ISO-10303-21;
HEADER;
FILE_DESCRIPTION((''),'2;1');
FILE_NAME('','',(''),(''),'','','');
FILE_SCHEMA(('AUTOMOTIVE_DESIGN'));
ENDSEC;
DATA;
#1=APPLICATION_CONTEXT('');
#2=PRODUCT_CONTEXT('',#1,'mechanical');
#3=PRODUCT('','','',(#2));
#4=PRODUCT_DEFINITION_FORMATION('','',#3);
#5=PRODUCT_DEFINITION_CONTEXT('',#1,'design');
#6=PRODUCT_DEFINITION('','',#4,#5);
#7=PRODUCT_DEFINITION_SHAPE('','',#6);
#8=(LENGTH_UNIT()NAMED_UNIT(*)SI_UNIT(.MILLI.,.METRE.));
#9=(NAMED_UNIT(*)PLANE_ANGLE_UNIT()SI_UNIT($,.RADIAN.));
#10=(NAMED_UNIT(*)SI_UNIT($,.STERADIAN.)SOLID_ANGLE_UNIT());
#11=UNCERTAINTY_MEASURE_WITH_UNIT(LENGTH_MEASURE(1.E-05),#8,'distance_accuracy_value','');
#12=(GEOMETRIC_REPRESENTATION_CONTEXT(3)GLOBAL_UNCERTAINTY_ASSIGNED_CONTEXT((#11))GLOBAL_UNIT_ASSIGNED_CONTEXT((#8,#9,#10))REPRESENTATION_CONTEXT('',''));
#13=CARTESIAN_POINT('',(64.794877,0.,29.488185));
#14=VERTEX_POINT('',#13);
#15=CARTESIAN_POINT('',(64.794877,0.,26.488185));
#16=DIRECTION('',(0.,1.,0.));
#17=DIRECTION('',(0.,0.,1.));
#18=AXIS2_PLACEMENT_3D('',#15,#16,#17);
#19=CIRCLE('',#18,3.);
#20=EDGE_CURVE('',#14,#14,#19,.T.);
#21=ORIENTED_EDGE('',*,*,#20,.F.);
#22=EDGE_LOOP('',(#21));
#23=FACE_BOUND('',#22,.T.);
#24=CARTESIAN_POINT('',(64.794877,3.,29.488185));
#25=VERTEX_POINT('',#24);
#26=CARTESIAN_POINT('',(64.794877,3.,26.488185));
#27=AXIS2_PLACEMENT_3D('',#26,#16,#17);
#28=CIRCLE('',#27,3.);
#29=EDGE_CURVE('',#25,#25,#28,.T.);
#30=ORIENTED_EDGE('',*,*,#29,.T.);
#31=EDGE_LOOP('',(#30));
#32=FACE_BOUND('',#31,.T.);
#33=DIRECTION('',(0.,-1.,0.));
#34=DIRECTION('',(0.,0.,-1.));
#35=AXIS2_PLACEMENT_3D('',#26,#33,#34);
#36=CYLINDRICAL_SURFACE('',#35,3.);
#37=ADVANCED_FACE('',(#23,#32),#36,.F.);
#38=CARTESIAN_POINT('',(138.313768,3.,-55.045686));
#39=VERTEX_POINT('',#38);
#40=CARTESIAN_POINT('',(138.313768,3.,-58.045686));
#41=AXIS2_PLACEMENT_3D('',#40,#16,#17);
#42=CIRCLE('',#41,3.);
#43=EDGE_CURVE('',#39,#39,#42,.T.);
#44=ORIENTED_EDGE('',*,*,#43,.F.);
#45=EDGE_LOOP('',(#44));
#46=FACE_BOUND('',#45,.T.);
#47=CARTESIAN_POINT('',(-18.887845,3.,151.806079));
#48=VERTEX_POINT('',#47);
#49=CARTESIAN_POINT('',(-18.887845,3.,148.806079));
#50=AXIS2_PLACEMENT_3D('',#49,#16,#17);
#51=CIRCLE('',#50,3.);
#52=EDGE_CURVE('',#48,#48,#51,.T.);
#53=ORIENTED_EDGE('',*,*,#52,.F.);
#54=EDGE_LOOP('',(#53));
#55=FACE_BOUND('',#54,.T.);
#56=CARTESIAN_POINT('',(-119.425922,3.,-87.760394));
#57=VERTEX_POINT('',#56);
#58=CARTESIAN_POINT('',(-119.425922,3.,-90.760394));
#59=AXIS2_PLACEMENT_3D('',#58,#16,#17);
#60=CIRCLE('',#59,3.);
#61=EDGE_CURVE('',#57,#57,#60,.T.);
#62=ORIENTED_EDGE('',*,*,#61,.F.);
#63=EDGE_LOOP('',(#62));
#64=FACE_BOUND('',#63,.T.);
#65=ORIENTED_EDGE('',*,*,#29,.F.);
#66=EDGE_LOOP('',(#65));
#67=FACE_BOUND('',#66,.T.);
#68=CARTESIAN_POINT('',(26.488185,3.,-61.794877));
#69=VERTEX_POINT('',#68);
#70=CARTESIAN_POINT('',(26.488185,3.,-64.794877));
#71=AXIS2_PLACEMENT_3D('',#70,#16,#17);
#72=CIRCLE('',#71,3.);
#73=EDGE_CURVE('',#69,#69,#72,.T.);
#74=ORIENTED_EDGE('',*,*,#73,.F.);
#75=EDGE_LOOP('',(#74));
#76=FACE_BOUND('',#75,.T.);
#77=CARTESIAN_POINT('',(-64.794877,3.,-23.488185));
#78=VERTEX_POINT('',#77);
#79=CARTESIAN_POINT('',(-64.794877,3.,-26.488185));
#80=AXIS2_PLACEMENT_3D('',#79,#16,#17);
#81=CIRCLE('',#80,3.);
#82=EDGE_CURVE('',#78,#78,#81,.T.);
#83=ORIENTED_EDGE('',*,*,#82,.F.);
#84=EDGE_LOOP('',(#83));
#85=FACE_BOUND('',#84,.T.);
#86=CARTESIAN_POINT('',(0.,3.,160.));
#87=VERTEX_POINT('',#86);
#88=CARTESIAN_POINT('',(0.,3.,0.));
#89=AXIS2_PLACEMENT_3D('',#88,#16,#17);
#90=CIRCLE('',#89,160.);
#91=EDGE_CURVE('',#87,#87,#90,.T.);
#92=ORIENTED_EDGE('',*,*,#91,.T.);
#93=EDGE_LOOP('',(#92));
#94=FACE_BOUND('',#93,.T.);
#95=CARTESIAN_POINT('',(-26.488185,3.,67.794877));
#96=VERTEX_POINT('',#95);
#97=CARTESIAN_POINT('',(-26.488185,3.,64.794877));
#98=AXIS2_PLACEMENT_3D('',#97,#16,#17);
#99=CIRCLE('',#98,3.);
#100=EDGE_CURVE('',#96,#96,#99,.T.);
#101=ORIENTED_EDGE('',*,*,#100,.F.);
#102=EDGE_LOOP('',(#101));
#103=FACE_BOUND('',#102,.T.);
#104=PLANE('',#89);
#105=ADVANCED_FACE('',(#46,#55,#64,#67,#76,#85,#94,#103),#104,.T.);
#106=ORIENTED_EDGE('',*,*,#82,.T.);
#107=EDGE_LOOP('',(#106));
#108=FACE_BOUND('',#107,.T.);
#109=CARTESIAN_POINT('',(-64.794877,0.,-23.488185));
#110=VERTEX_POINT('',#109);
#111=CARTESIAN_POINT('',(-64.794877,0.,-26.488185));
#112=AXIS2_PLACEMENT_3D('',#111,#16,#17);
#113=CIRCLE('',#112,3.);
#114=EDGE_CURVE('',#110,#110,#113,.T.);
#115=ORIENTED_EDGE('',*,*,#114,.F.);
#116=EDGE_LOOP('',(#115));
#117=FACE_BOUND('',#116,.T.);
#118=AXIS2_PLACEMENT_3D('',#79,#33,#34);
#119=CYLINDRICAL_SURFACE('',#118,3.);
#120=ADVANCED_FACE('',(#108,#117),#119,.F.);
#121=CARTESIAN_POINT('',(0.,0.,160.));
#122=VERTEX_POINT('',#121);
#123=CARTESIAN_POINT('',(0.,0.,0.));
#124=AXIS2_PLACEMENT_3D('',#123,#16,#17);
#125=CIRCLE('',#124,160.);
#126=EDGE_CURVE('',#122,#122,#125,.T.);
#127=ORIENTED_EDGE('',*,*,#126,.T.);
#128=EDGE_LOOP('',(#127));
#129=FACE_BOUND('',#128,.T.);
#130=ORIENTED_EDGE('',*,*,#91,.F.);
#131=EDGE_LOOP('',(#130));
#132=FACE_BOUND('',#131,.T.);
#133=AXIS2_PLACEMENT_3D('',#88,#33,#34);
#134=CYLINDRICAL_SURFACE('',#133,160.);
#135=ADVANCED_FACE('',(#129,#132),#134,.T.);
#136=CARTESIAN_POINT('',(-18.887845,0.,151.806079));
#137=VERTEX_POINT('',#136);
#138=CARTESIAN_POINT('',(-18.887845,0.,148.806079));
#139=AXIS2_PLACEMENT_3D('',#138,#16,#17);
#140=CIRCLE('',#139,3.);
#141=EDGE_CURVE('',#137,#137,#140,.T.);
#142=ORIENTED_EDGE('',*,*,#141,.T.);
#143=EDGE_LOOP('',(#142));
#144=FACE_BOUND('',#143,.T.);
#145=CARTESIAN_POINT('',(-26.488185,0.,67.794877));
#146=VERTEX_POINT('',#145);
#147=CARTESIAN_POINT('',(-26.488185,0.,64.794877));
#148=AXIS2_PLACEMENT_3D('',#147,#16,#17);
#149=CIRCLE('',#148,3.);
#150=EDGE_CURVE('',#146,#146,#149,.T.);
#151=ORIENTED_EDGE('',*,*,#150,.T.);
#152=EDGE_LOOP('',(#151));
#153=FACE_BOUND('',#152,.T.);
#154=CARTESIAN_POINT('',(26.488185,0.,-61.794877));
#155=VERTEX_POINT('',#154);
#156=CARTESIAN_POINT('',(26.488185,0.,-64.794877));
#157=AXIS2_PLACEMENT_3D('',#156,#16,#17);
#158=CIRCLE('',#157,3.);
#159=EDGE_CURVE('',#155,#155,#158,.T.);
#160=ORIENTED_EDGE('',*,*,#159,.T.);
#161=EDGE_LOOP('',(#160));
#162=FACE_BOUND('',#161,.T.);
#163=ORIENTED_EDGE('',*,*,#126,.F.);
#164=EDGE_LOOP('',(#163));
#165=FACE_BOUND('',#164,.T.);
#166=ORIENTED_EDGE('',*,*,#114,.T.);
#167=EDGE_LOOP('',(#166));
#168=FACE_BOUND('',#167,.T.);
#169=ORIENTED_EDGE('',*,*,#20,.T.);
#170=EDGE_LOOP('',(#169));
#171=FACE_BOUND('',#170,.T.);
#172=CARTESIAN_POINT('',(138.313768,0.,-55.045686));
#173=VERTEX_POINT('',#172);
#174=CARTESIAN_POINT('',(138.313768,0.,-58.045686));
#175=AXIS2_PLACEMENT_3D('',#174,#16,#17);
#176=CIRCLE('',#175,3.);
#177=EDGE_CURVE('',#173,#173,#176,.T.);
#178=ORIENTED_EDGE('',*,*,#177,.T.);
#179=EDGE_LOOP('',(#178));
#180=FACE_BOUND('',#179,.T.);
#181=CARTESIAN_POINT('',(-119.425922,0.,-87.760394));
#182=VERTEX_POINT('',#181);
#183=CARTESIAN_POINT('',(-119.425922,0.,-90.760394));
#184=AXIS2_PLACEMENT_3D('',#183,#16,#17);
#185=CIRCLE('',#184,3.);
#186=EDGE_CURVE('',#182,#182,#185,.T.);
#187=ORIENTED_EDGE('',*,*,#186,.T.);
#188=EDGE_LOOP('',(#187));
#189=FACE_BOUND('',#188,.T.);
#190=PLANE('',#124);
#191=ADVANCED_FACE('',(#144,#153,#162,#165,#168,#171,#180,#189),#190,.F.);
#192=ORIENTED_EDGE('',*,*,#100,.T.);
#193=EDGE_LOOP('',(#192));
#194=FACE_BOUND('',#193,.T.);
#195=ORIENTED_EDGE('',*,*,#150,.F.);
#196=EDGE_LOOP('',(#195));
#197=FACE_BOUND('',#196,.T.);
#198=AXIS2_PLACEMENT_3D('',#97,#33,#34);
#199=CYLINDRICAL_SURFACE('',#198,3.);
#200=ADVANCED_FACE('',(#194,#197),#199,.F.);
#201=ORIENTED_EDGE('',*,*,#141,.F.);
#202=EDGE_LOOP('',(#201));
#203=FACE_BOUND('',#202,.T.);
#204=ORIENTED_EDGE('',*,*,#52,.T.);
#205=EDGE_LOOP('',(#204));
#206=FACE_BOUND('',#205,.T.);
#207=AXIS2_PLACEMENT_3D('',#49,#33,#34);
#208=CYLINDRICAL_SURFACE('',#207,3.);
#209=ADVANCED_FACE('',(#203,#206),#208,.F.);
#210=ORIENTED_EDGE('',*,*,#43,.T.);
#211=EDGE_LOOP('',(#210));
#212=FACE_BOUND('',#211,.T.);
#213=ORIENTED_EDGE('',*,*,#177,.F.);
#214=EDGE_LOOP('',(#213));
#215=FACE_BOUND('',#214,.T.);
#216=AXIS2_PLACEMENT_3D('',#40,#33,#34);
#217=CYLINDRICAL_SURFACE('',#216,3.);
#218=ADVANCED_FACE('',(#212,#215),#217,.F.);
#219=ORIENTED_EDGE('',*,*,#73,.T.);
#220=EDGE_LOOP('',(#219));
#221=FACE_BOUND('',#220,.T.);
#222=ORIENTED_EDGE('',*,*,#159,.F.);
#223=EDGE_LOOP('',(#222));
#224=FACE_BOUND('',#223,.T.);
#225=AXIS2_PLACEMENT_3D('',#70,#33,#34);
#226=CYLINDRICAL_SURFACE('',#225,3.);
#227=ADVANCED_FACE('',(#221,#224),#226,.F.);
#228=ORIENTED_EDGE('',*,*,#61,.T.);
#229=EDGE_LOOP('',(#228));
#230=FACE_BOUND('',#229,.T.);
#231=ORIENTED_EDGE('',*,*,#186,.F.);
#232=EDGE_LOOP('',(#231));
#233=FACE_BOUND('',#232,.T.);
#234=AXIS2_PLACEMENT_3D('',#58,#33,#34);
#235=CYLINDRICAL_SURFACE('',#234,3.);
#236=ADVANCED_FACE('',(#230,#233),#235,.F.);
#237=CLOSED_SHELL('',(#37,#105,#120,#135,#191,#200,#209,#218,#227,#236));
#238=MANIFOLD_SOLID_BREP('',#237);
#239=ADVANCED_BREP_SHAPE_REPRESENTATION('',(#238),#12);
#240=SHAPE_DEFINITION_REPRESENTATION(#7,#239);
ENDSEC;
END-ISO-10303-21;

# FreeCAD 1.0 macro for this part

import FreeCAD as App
import Part
import Sketcher
from FreeCAD import Vector

doc = App.newDocument("Part")
body = doc.addObject("PartDesign::Body", "Body")

sketch1 = body.newObject("Sketcher::SketchObject", "Sketch")
sketch1.AttachmentSupport = (doc.getObject("XZ_Plane"), [""])
sketch1.MapMode = "FlatFace"
sketch1.addGeometry(Part.Circle(Vector(0, 0, 0), Vector(0, 0, 1), 160), False)
sketch1.addGeometry(Part.Circle(Vector(-18.9, 148.8, 0), Vector(0, 0, 1), 3), False)
sketch1.addGeometry(Part.Circle(Vector(-26.5, 64.8, 0), Vector(0, 0, 1), 3), False)
sketch1.addGeometry(Part.Circle(Vector(-64.8, -26.5, 0), Vector(0, 0, 1), 3), False)
sketch1.addGeometry(Part.Circle(Vector(-119.4, -90.8, 0), Vector(0, 0, 1), 3), False)
sketch1.addGeometry(Part.Circle(Vector(64.8, 26.5, 0), Vector(0, 0, 1), 3), False)
sketch1.addGeometry(Part.Circle(Vector(26.5, -64.8, 0), Vector(0, 0, 1), 3), False)
sketch1.addGeometry(Part.Circle(Vector(138.3, -58, 0), Vector(0, 0, 1), 3), False)
sketch1.addConstraint(Sketcher.Constraint("Coincident", 0, 3, -1, 1))
sketch1.addConstraint(Sketcher.Constraint("Equal", 1, 2))
sketch1.addConstraint(Sketcher.Constraint("Equal", 2, 3))
sketch1.addConstraint(Sketcher.Constraint("Equal", 3, 4))
sketch1.addConstraint(Sketcher.Constraint("Equal", 4, 5))
sketch1.addConstraint(Sketcher.Constraint("Equal", 5, 6))
sketch1.addConstraint(Sketcher.Constraint("Equal", 6, 7))
sketch1.addConstraint(Sketcher.Constraint("Symmetric", 3, 3, 5, 3, -1, 1))
sketch1.addConstraint(Sketcher.Constraint("Symmetric", 2, 3, 6, 3, -1, 1))
sketch1.addConstraint(Sketcher.Constraint("Diameter", 0, 320.0))
sketch1.addConstraint(Sketcher.Constraint("Diameter", 1, 6.0))
sketch1.addConstraint(Sketcher.Constraint("DistanceX", 4, 3, 5, 3, 184.220799))
sketch1.addConstraint(Sketcher.Constraint("DistanceY", 7, 3, 3, 3, 31.557501))
sketch1.addConstraint(Sketcher.Constraint("DistanceY", -1, 1, 1, 3, 148.806079))
sketch1.addConstraint(Sketcher.Constraint("DistanceX", 2, 3, 1, 3, 7.600339))
sketch1.addConstraint(Sketcher.Constraint("DistanceY", 3, 3, 2, 3, 91.283062))
sketch1.addConstraint(Sketcher.Constraint("DistanceX", 3, 3, 1, 3, 45.907031))
sketch1.addConstraint(Sketcher.Constraint("DistanceY", 4, 3, 3, 3, 64.272209))
sketch1.addConstraint(Sketcher.Constraint("DistanceX", 2, 3, 5, 3, 91.283062))
sketch1.addConstraint(Sketcher.Constraint("DistanceY", 3, 3, 5, 3, 52.976369))
sketch1.addConstraint(Sketcher.Constraint("DistanceX", 5, 3, 7, 3, 73.518891))
pad1 = body.newObject("PartDesign::Pad", "Pad")
pad1.Profile = sketch1
pad1.Length = 3
pad1.Reversed = True

doc.recompute()
